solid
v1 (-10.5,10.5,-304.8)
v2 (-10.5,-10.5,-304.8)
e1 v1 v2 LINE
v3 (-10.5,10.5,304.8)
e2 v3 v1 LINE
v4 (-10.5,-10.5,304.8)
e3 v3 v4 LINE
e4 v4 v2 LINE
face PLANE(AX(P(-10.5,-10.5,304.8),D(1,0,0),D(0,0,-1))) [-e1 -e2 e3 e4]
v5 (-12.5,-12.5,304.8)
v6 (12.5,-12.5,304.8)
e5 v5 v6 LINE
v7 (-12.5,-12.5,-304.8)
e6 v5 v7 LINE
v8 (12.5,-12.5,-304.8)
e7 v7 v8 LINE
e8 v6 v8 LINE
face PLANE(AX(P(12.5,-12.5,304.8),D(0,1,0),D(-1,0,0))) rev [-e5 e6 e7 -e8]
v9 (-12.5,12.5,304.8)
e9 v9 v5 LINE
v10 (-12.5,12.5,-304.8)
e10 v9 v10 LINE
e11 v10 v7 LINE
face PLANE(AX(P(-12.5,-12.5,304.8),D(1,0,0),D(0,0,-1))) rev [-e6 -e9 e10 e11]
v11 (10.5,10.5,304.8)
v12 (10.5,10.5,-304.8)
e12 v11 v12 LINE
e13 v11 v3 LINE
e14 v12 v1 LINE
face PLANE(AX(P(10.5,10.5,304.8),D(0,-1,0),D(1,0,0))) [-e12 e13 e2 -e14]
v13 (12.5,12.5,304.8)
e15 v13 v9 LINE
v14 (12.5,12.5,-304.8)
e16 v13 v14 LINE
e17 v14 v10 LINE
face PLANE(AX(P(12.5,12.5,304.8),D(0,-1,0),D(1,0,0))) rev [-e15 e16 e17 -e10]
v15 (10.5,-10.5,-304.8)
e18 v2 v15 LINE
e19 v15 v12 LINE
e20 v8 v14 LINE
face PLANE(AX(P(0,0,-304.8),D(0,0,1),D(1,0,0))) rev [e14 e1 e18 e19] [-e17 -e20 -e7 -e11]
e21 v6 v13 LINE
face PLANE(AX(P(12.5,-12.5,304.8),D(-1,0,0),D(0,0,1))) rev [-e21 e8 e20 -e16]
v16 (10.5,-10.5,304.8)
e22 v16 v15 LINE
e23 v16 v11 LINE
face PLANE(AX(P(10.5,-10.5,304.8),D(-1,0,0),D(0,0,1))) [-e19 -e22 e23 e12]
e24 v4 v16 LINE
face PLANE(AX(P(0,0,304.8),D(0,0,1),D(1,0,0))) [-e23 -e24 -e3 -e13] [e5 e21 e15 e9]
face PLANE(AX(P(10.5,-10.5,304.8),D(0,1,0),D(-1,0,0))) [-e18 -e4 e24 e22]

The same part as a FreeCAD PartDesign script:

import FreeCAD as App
import Part
import Sketcher

V = App.Vector


def add_polygon(sketch, points):
    """Adds a closed chain of lines whose ends are joined by coincident constraints."""
    first, n = sketch.GeometryCount, len(points)
    for a, b in zip(points, points[1:] + points[:1]):
        sketch.addGeometry(Part.LineSegment(App.Vector(*a, 0), App.Vector(*b, 0)), False)
    for i in range(n):
        sketch.addConstraint(Sketcher.Constraint("Coincident", first + i, 2, first + (i + 1) % n, 1))

doc = App.newDocument("Part")
body = doc.addObject("PartDesign::Body", "Body")

# Sketch on XY plane
sketch1 = body.newObject("Sketcher::SketchObject", "Sketch")
sketch1.AttachmentSupport = (doc.getObject("XY_Plane"), [""])
sketch1.MapMode = "FlatFace"
add_polygon(sketch1, [(-12, 12), (-12, -12), (12, -12), (12, 12)])  # lines 0-3
add_polygon(sketch1, [(10, -10), (-10, -10), (-10, 10), (10, 10)])  # lines 4-7
sketch1.addConstraint([
    Sketcher.Constraint("Vertical", 0),
    Sketcher.Constraint("Horizontal", 1),
    Sketcher.Constraint("Vertical", 2),
    Sketcher.Constraint("Horizontal", 3),
    Sketcher.Constraint("Horizontal", 4),
    Sketcher.Constraint("Vertical", 5),
    Sketcher.Constraint("Horizontal", 6),
    Sketcher.Constraint("Vertical", 7),
    Sketcher.Constraint("Symmetric", 0, 2, 2, 2, -1, 1),
    Sketcher.Constraint("Symmetric", 4, 2, 6, 2, -1, 1),
    Sketcher.Constraint("Equal", 3, 0),
    Sketcher.Constraint("Equal", 6, 5),
    Sketcher.Constraint("DistanceX", 1, 1, 1, 2, 25.0),
    Sketcher.Constraint("DistanceX", 4, 2, 4, 1, 21.0),
])
pad1 = body.newObject("PartDesign::Pad", "Pad")
pad1.Profile = sketch1
pad1.Type = "TwoLengths"
pad1.Length = 304.8
pad1.Length2 = 304.8

doc.recompute()
